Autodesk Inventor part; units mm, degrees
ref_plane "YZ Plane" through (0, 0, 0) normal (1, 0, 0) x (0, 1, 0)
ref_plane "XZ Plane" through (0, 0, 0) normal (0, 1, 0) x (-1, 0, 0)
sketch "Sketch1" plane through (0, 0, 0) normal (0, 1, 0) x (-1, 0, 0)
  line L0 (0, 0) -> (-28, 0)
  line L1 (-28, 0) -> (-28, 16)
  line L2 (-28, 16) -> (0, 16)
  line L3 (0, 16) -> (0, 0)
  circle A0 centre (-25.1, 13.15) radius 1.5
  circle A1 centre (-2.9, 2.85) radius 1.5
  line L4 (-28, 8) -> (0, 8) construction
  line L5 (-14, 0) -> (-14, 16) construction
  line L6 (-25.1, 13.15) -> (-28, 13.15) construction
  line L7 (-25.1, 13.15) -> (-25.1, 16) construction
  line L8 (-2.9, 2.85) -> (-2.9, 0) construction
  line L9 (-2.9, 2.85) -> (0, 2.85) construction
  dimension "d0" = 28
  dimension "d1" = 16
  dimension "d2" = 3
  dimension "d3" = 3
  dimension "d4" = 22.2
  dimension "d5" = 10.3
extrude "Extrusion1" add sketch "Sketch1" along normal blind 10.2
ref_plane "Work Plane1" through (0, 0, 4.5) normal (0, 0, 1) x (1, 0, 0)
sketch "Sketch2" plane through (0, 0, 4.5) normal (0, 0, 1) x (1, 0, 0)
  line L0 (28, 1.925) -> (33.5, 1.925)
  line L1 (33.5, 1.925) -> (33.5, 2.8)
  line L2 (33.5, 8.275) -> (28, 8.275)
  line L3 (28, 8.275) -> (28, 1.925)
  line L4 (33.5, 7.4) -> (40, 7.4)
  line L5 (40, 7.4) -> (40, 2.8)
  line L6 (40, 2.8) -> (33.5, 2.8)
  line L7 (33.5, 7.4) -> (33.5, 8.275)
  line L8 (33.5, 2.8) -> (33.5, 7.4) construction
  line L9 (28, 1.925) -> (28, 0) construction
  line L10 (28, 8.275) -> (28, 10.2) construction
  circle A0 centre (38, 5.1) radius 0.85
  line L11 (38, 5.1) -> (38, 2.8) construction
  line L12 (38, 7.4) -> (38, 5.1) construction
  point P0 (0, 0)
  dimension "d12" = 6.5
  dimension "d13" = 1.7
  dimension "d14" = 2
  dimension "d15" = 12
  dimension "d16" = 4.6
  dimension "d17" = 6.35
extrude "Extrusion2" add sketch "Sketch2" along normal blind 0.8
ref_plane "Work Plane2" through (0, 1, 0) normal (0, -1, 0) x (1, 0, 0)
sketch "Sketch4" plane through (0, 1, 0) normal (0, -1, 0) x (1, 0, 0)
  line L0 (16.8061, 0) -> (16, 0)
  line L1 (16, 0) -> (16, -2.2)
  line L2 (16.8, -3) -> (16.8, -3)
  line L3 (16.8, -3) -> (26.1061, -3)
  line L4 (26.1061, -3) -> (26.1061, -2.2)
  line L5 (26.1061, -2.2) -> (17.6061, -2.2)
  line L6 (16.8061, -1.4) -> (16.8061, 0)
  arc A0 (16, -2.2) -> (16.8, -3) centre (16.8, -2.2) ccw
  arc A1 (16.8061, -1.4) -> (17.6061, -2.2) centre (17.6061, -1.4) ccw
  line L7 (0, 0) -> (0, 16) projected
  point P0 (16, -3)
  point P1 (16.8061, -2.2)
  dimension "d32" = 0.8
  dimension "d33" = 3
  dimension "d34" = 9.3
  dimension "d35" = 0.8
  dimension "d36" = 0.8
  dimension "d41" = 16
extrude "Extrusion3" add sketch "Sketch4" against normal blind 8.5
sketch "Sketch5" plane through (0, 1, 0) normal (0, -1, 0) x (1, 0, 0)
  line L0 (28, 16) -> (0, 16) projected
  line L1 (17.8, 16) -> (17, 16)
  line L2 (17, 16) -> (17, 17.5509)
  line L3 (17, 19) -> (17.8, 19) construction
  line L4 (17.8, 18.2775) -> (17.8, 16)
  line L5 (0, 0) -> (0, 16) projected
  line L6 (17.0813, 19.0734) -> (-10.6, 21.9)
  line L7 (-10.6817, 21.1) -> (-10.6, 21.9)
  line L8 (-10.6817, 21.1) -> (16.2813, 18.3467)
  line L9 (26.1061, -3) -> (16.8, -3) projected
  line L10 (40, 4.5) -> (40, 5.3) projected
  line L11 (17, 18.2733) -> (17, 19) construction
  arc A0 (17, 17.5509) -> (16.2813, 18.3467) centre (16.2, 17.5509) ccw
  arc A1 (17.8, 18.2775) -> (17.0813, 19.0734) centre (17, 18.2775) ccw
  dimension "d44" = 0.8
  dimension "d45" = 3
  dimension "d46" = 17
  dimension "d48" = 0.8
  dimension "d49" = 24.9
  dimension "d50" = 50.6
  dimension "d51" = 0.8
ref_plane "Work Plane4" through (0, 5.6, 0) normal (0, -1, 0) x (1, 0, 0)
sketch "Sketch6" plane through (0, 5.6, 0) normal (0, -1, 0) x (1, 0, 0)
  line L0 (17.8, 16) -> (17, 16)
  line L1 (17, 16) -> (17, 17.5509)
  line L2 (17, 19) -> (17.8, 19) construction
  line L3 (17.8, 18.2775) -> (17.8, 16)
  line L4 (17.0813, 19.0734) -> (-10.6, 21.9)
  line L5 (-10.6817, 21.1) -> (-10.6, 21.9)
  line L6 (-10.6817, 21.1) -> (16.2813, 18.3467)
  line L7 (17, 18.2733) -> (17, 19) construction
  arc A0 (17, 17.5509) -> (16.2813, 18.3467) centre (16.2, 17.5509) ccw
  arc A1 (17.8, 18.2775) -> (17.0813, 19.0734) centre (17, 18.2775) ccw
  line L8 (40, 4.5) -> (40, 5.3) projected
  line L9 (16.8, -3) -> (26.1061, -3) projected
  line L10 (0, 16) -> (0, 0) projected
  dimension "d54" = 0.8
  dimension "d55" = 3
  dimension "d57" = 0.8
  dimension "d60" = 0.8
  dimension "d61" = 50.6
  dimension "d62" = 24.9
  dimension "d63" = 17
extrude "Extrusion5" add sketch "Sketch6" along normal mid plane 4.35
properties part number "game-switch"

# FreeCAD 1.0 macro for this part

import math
import FreeCAD as App
import Part
import Sketcher
Q = App.Units.Quantity


def add_polygon(sketch, points):
    """Adds a closed chain of lines whose ends are joined by coincident constraints."""
    first, n = sketch.GeometryCount, len(points)
    for a, b in zip(points, points[1:] + points[:1]):
        sketch.addGeometry(Part.LineSegment(App.Vector(*a, 0), App.Vector(*b, 0)), False)
    for i in range(n):
        sketch.addConstraint(Sketcher.Constraint("Coincident", first + i, 2, first + (i + 1) % n, 1))

doc = App.newDocument("Part")
body = doc.addObject("PartDesign::Body", "Body")

# Sketch on XZ plane
sketch1 = doc.addObject("Sketcher::SketchObject", "Sketch")
body.addObject(sketch1)
sketch1.AttachmentSupport = (doc.XZ_Plane, [""])
sketch1.MapMode = "FlatFace"
add_polygon(sketch1, [(28, 0), (0, 0), (0, 16), (28, 16)])  # lines 0-3
sketch1.addGeometry(Part.Circle(App.Vector(2.9, 2.85, 0), App.Vector(0, 0, 1), 1.5), False)  # 4
sketch1.addGeometry(Part.Circle(App.Vector(25.1, 13.15, 0), App.Vector(0, 0, 1), 1.5), False)  # 5
sketch1.addConstraint(Sketcher.Constraint("Horizontal", 0))
sketch1.addConstraint(Sketcher.Constraint("Vertical", 1))
sketch1.addConstraint(Sketcher.Constraint("Horizontal", 2))
sketch1.addConstraint(Sketcher.Constraint("Vertical", 3))
sketch1.addConstraint(Sketcher.Constraint("Coincident", 0, 2, -1, 1))
sketch1.addConstraint(Sketcher.Constraint("Equal", 4, 5))
sketch1.addConstraint(Sketcher.Constraint("Diameter", 4, 3.0))
sketch1.addConstraint(Sketcher.Constraint("DistanceX", 0, 2, 0, 1, 28.0))
sketch1.addConstraint(Sketcher.Constraint("DistanceY", 1, 1, 1, 2, 16.0))
sketch1.addConstraint(Sketcher.Constraint("DistanceX", 4, 3, 5, 3, 22.2))
sketch1.addConstraint(Sketcher.Constraint("DistanceY", 4, 3, 5, 3, 10.3))
sketch1.addConstraint(Sketcher.Constraint("DistanceX", -1, 1, 4, 3, 2.9))
sketch1.addConstraint(Sketcher.Constraint("DistanceY", -1, 1, 4, 3, 2.85))
pad1 = doc.addObject("PartDesign::Pad", "Pad")
body.addObject(pad1)
pad1.Profile = sketch1
pad1.Length = 10.2
pad1.Reversed = True

# Sketch on XY plane
sketch2 = doc.addObject("Sketcher::SketchObject", "Sketch001")
body.addObject(sketch2)
sketch2.AttachmentSupport = (doc.XY_Plane, [""])
sketch2.MapMode = "FlatFace"
sketch2.AttachmentOffset = App.Placement(App.Vector(0, 0, 4.5), App.Rotation())
add_polygon(sketch2, [(28, 8.275), (28, 1.925), (33.5, 1.925), (33.5, 2.8), (40, 2.8), (40, 7.4), (33.5, 7.4), (33.5, 8.275)])  # lines 0-7
sketch2.addGeometry(Part.Circle(App.Vector(38, 5.1, 0), App.Vector(0, 0, 1), 0.85), False)  # 8
sketch2.addConstraint(Sketcher.Constraint("Vertical", 0))
sketch2.addConstraint(Sketcher.Constraint("Horizontal", 1))
sketch2.addConstraint(Sketcher.Constraint("Vertical", 2))
sketch2.addConstraint(Sketcher.Constraint("Horizontal", 3))
sketch2.addConstraint(Sketcher.Constraint("Vertical", 4))
sketch2.addConstraint(Sketcher.Constraint("Horizontal", 5))
sketch2.addConstraint(Sketcher.Constraint("Vertical", 6))
sketch2.addConstraint(Sketcher.Constraint("Horizontal", 7))
sketch2.addConstraint(Sketcher.Constraint("Vertical", 2, 2, 5, 2))
sketch2.addConstraint(Sketcher.Constraint("Equal", 2, 6))
sketch2.addConstraint(Sketcher.Constraint("Diameter", 8, 1.7))
sketch2.addConstraint(Sketcher.Constraint("DistanceX", 3, 1, 3, 2, 6.5))
sketch2.addConstraint(Sketcher.Constraint("DistanceY", 4, 1, 4, 2, 4.6))
sketch2.addConstraint(Sketcher.Constraint("DistanceX", 8, 3, 3, 2, 2.0))
sketch2.addConstraint(Sketcher.Constraint("DistanceX", 0, 2, 3, 2, 12.0))
sketch2.addConstraint(Sketcher.Constraint("DistanceY", 0, 2, 0, 1, 6.35))
sketch2.addConstraint(Sketcher.Constraint("DistanceX", -1, 1, 8, 3, 38.0))
sketch2.addConstraint(Sketcher.Constraint("DistanceY", -1, 1, 8, 3, 5.1))
sketch2.addConstraint(Sketcher.Constraint("DistanceY", -1, 1, 2, 2, 2.8))
pad2 = doc.addObject("PartDesign::Pad", "Pad001")
body.addObject(pad2)
pad2.Profile = sketch2
pad2.Length = 0.8

# Sketch on XZ plane
sketch3 = doc.addObject("Sketcher::SketchObject", "Sketch002")
body.addObject(sketch3)
sketch3.AttachmentSupport = (doc.XZ_Plane, [""])
sketch3.MapMode = "FlatFace"
sketch3.AttachmentOffset = App.Placement(App.Vector(0, 0, -1), App.Rotation())
sketch3.addGeometry(Part.LineSegment(App.Vector(16.8061, -1.4, 0), App.Vector(16.8061, 0, 0)), False)
sketch3.addGeometry(Part.LineSegment(App.Vector(16.8061, 0, 0), App.Vector(16, 0, 0)), False)
sketch3.addGeometry(Part.LineSegment(App.Vector(16, 0, 0), App.Vector(16, -2.2, 0)), False)
sketch3.addGeometry(Part.ArcOfCircle(Part.Circle(App.Vector(16.8, -2.2, 0), App.Vector(0, 0, 1), 0.8), math.radians(180), math.radians(270)), False)
sketch3.addGeometry(Part.LineSegment(App.Vector(16.8, -3, 0), App.Vector(26.1061, -3, 0)), False)
sketch3.addGeometry(Part.LineSegment(App.Vector(26.1061, -3, 0), App.Vector(26.1061, -2.2, 0)), False)
sketch3.addGeometry(Part.LineSegment(App.Vector(26.1061, -2.2, 0), App.Vector(17.6061, -2.2, 0)), False)
sketch3.addGeometry(Part.ArcOfCircle(Part.Circle(App.Vector(17.6061, -1.4, 0), App.Vector(0, 0, 1), 0.8), math.radians(180), math.radians(270)), False)
sketch3.addConstraint(Sketcher.Constraint("Coincident", 0, 2, 1, 1))
sketch3.addConstraint(Sketcher.Constraint("Coincident", 1, 2, 2, 1))
sketch3.addConstraint(Sketcher.Constraint("Tangent", 2, 2, 3, 1))
sketch3.addConstraint(Sketcher.Constraint("Tangent", 3, 2, 4, 1))
sketch3.addConstraint(Sketcher.Constraint("Coincident", 4, 2, 5, 1))
sketch3.addConstraint(Sketcher.Constraint("Coincident", 5, 2, 6, 1))
sketch3.addConstraint(Sketcher.Constraint("Tangent", 6, 2, 7, 2))
sketch3.addConstraint(Sketcher.Constraint("Tangent", 7, 1, 0, 1))
sketch3.addConstraint(Sketcher.Constraint("Vertical", 0))
sketch3.addConstraint(Sketcher.Constraint("Horizontal", 1))
sketch3.addConstraint(Sketcher.Constraint("Vertical", 2))
sketch3.addConstraint(Sketcher.Constraint("Horizontal", 4))
sketch3.addConstraint(Sketcher.Constraint("Vertical", 5))
sketch3.addConstraint(Sketcher.Constraint("Horizontal", 6))
sketch3.addConstraint(Sketcher.Constraint("Equal", 3, 7))
sketch3.addConstraint(Sketcher.Constraint("PointOnObject", 0, 2, -1))
sketch3.addConstraint(Sketcher.Constraint("Horizontal", 2, 2, 5, 2))
sketch3.addConstraint(Sketcher.Constraint("Radius", 3, 0.8))
sketch3.addConstraint(Sketcher.Constraint("DistanceX", -1, 1, 1, 2, 16.0))
sketch3.addConstraint(Sketcher.Constraint("DistanceY", 3, 2, -1, 1, 3.0))
sketch3.addConstraint(Sketcher.Constraint("DistanceX", 0, 2, 4, 2, 9.3))
sketch3.addConstraint(Sketcher.Constraint("DistanceX", 1, 2, 1, 1, 0.806))
pad3 = doc.addObject("PartDesign::Pad", "Pad002")
body.addObject(pad3)
pad3.Profile = sketch3
pad3.Length = 8.5
pad3.Reversed = True

# Sketch on XZ plane
sketch4 = doc.addObject("Sketcher::SketchObject", "Sketch003")
body.addObject(sketch4)
sketch4.AttachmentSupport = (doc.XZ_Plane, [""])
sketch4.MapMode = "FlatFace"
sketch4.AttachmentOffset = App.Placement(App.Vector(0, 0, -5.6), App.Rotation())
sketch4.addGeometry(Part.LineSegment(App.Vector(17, 16, 0), App.Vector(17.8, 16, 0)), False)
sketch4.addGeometry(Part.LineSegment(App.Vector(17.8, 16, 0), App.Vector(17.8, 18.2775, 0)), False)
sketch4.addGeometry(Part.ArcOfCircle(Part.Circle(App.Vector(17, 18.2775, 0), App.Vector(0, 0, 1), 0.8), math.radians(0), math.radians(84.167551)), False)
sketch4.addGeometry(Part.LineSegment(App.Vector(17.0813, 19.0734, 0), App.Vector(-10.6, 21.9, 0)), False)
sketch4.addGeometry(Part.LineSegment(App.Vector(-10.6, 21.9, 0), App.Vector(-10.6817, 21.1, 0)), False)
sketch4.addGeometry(Part.LineSegment(App.Vector(-10.6817, 21.1, 0), App.Vector(16.2813, 18.3467, 0)), False)
sketch4.addGeometry(Part.ArcOfCircle(Part.Circle(App.Vector(16.2, 17.5509, 0), App.Vector(0, 0, 1), 0.8), math.radians(0), math.radians(84.166823)), False)
sketch4.addGeometry(Part.LineSegment(App.Vector(17, 17.5509, 0), App.Vector(17, 16, 0)), False)
sketch4.addConstraint(Sketcher.Constraint("Coincident", 0, 2, 1, 1))
sketch4.addConstraint(Sketcher.Constraint("Tangent", 1, 2, 2, 1))
sketch4.addConstraint(Sketcher.Constraint("Tangent", 2, 2, 3, 1))
sketch4.addConstraint(Sketcher.Constraint("Coincident", 3, 2, 4, 1))
sketch4.addConstraint(Sketcher.Constraint("Coincident", 4, 2, 5, 1))
sketch4.addConstraint(Sketcher.Constraint("Tangent", 5, 2, 6, 2))
sketch4.addConstraint(Sketcher.Constraint("Tangent", 6, 1, 7, 1))
sketch4.addConstraint(Sketcher.Constraint("Coincident", 7, 2, 0, 1))
sketch4.addConstraint(Sketcher.Constraint("Horizontal", 0))
sketch4.addConstraint(Sketcher.Constraint("Vertical", 1))
sketch4.addConstraint(Sketcher.Constraint("Vertical", 7))
sketch4.addConstraint(Sketcher.Constraint("Equal", 2, 6))
sketch4.addConstraint(Sketcher.Constraint("Perpendicular", 3, 4))
sketch4.addConstraint(Sketcher.Constraint("Perpendicular", 4, 5))
sketch4.addConstraint(Sketcher.Constraint("Vertical", 2, 3, 6, 1))
sketch4.addConstraint(Sketcher.Constraint("Radius", 2, 0.8))
sketch4.addConstraint(Sketcher.Constraint("DistanceX", -1, 1, 2, 3, 17.0))
sketch4.addConstraint(Sketcher.Constraint("DistanceY", 4, 2, 3, 2, 0.8))
sketch4.addConstraint(Sketcher.Constraint("DistanceY", -1, 1, 0, 2, 16.0))
sketch4.addConstraint(Sketcher.Constraint("DistanceX", 3, 2, -1, 1, 10.6))
sketch4.addConstraint(Sketcher.Constraint("DistanceY", -1, 1, 3, 2, 21.9))
sketch4.addConstraint(Sketcher.Constraint("Angle", 3, Q("174.1696 deg")))
pad4 = doc.addObject("PartDesign::Pad", "Pad003")
body.addObject(pad4)
pad4.Profile = sketch4
pad4.Length = 4.35
pad4.Midplane = True

doc.recompute()
